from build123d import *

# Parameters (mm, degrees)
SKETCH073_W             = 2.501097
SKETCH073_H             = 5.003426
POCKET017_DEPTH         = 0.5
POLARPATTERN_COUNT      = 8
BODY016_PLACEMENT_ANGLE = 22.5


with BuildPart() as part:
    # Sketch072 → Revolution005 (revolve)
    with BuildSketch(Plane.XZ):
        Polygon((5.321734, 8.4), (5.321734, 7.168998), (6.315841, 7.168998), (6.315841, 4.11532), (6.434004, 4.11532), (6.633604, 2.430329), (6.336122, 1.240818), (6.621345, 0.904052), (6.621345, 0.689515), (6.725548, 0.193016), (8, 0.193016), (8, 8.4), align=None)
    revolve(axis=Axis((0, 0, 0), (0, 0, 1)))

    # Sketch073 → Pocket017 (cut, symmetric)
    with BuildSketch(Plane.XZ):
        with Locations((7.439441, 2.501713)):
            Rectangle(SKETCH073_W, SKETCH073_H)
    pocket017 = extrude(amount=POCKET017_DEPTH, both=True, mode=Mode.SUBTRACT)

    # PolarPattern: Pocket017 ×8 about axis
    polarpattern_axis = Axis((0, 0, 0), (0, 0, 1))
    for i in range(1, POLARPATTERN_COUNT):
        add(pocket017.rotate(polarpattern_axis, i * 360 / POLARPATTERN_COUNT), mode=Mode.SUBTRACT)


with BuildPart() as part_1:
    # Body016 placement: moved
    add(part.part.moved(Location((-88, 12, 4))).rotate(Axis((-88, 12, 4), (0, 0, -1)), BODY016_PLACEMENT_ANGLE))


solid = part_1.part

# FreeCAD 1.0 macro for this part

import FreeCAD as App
import Part
import Sketcher

V = App.Vector

doc = App.newDocument("Part")
body = doc.addObject("PartDesign::Body", "Body")

sketch1 = doc.addObject("Sketcher::SketchObject", "Sketch")
body.addObject(sketch1)
sketch1.AttachmentSupport = (doc.XZ_Plane, [""])
sketch1.MapMode = "FlatFace"
sketch1.addGeometry([
    Part.LineSegment(V(5.32, 8.4, 0), V(5.32, 7.17, 0)),
    Part.LineSegment(V(5.32, 7.17, 0), V(6.32, 7.17, 0)),
    Part.LineSegment(V(6.32, 7.17, 0), V(6.32, 4.12, 0)),
    Part.LineSegment(V(6.32, 4.12, 0), V(6.43, 4.12, 0)),
    Part.LineSegment(V(6.43, 4.12, 0), V(6.63, 2.43, 0)),
    Part.LineSegment(V(6.63, 2.43, 0), V(6.34, 1.24, 0)),
    Part.LineSegment(V(6.34, 1.24, 0), V(6.62, 0.9, 0)),
    Part.LineSegment(V(6.62, 0.9, 0), V(6.62, 0.69, 0)),
    Part.LineSegment(V(6.62, 0.69, 0), V(6.73, 0.19, 0)),
    Part.LineSegment(V(6.73, 0.19, 0), V(8, 0.19, 0)),
    Part.LineSegment(V(8, 0.19, 0), V(8, 8.4, 0)),
    Part.LineSegment(V(8, 8.4, 0), V(5.32, 8.4, 0)),
], False)
sketch1.addConstraint([
    Sketcher.Constraint("Coincident", 0, 2, 1, 1),
    Sketcher.Constraint("Coincident", 1, 2, 2, 1),
    Sketcher.Constraint("Coincident", 2, 2, 3, 1),
    Sketcher.Constraint("Coincident", 3, 2, 4, 1),
    Sketcher.Constraint("Coincident", 4, 2, 5, 1),
    Sketcher.Constraint("Coincident", 5, 2, 6, 1),
    Sketcher.Constraint("Coincident", 6, 2, 7, 1),
    Sketcher.Constraint("Coincident", 7, 2, 8, 1),
    Sketcher.Constraint("Coincident", 8, 2, 9, 1),
    Sketcher.Constraint("Coincident", 9, 2, 10, 1),
    Sketcher.Constraint("Coincident", 10, 2, 11, 1),
    Sketcher.Constraint("Coincident", 11, 2, 0, 1),
    Sketcher.Constraint("Vertical", 0),
    Sketcher.Constraint("Horizontal", 1),
    Sketcher.Constraint("Vertical", 2),
    Sketcher.Constraint("Horizontal", 3),
    Sketcher.Constraint("Vertical", 7),
    Sketcher.Constraint("Horizontal", 9),
    Sketcher.Constraint("Vertical", 10),
    Sketcher.Constraint("Horizontal", 11),
    Sketcher.Constraint("DistanceX", -1, 1, 9, 2, 8.0),
    Sketcher.Constraint("DistanceY", -1, 1, 10, 2, 8.4),
    Sketcher.Constraint("DistanceY", -1, 1, 0, 2, 7.168998),
    Sketcher.Constraint("DistanceY", 2, 2, 2, 1, 3.053678),
    Sketcher.Constraint("DistanceX", 3, 2, 4, 2, 0.1996),
    Sketcher.Constraint("DistanceY", 5, 2, 2, 2, 2.874502),
    Sketcher.Constraint("DistanceY", 8, 2, 7, 2, 0.496499),
    Sketcher.Constraint("DistanceY", 8, 2, 5, 2, 1.047802),
    Sketcher.Constraint("Distance", 4, 1.696772),
    Sketcher.Constraint("Distance", 6, 0.44132),
    Sketcher.Constraint("DistanceX", 1, 1, 1, 2, 0.994107),
    Sketcher.Constraint("DistanceX", 3, 1, 3, 2, 0.118163),
    Sketcher.Constraint("DistanceX", 9, 1, 9, 2, 1.274452),
    Sketcher.Constraint("DistanceX", 11, 2, 11, 1, 2.678266),
    Sketcher.Constraint("DistanceY", 7, 2, 7, 1, 0.214537),
    Sketcher.Constraint("DistanceX", -1, 1, 5, 2, 6.336122),
])
revolution = doc.addObject("PartDesign::Revolution", "Revolution")
body.addObject(revolution)
revolution.Profile = sketch1
revolution.ReferenceAxis = (sketch1, ["V_Axis"])
revolution.Angle = 360

sketch2 = doc.addObject("Sketcher::SketchObject", "Sketch001")
body.addObject(sketch2)
sketch2.AttachmentSupport = (doc.XZ_Plane, [""])
sketch2.MapMode = "FlatFace"
sketch2.addGeometry([
    Part.LineSegment(V(6.2, 5, 0), V(6.2, 0, 0)),
    Part.LineSegment(V(6.2, 0, 0), V(8.7, 0, 0)),
    Part.LineSegment(V(8.7, 0, 0), V(8.7, 5, 0)),
    Part.LineSegment(V(8.7, 5, 0), V(6.2, 5, 0)),
], False)
sketch2.addConstraint([
    Sketcher.Constraint("Coincident", 0, 2, 1, 1),
    Sketcher.Constraint("Coincident", 1, 2, 2, 1),
    Sketcher.Constraint("Coincident", 2, 2, 3, 1),
    Sketcher.Constraint("Coincident", 3, 2, 0, 1),
    Sketcher.Constraint("Vertical", 0),
    Sketcher.Constraint("Horizontal", 1),
    Sketcher.Constraint("Vertical", 2),
    Sketcher.Constraint("Horizontal", 3),
    Sketcher.Constraint("PointOnObject", 0, 2, -1),
    Sketcher.Constraint("DistanceX", 1, 1, 1, 2, 2.501097),
    Sketcher.Constraint("DistanceY", 0, 2, 0, 1, 5.003426),
    Sketcher.Constraint("DistanceX", -1, 1, 1, 2, 8.689989),
])
pocket1 = doc.addObject("PartDesign::Pocket", "Pocket")
body.addObject(pocket1)
pocket1.Profile = sketch2
pocket1.Length = 1
pocket1.Midplane = True
doc.recompute()

polarpattern = doc.addObject("PartDesign::PolarPattern", "PolarPattern")
body.addObject(polarpattern)
polarpattern.Originals = [pocket1]
polarpattern.Axis = (doc.Z_Axis, [""])
polarpattern.Angle = 360
polarpattern.Occurrences = 8
body.Tip = polarpattern
body2 = doc.addObject("PartDesign::Body", "Body001")
doc.recompute()

body.Placement = App.Placement(V(-88, 12, 4), App.Rotation(V(0, 0, -1), 22.5))
boolean = doc.addObject("PartDesign::Boolean", "Boolean")
body2.addObject(boolean)
boolean.Type = "Fuse"
boolean.addObjects([body])

doc.recompute()
